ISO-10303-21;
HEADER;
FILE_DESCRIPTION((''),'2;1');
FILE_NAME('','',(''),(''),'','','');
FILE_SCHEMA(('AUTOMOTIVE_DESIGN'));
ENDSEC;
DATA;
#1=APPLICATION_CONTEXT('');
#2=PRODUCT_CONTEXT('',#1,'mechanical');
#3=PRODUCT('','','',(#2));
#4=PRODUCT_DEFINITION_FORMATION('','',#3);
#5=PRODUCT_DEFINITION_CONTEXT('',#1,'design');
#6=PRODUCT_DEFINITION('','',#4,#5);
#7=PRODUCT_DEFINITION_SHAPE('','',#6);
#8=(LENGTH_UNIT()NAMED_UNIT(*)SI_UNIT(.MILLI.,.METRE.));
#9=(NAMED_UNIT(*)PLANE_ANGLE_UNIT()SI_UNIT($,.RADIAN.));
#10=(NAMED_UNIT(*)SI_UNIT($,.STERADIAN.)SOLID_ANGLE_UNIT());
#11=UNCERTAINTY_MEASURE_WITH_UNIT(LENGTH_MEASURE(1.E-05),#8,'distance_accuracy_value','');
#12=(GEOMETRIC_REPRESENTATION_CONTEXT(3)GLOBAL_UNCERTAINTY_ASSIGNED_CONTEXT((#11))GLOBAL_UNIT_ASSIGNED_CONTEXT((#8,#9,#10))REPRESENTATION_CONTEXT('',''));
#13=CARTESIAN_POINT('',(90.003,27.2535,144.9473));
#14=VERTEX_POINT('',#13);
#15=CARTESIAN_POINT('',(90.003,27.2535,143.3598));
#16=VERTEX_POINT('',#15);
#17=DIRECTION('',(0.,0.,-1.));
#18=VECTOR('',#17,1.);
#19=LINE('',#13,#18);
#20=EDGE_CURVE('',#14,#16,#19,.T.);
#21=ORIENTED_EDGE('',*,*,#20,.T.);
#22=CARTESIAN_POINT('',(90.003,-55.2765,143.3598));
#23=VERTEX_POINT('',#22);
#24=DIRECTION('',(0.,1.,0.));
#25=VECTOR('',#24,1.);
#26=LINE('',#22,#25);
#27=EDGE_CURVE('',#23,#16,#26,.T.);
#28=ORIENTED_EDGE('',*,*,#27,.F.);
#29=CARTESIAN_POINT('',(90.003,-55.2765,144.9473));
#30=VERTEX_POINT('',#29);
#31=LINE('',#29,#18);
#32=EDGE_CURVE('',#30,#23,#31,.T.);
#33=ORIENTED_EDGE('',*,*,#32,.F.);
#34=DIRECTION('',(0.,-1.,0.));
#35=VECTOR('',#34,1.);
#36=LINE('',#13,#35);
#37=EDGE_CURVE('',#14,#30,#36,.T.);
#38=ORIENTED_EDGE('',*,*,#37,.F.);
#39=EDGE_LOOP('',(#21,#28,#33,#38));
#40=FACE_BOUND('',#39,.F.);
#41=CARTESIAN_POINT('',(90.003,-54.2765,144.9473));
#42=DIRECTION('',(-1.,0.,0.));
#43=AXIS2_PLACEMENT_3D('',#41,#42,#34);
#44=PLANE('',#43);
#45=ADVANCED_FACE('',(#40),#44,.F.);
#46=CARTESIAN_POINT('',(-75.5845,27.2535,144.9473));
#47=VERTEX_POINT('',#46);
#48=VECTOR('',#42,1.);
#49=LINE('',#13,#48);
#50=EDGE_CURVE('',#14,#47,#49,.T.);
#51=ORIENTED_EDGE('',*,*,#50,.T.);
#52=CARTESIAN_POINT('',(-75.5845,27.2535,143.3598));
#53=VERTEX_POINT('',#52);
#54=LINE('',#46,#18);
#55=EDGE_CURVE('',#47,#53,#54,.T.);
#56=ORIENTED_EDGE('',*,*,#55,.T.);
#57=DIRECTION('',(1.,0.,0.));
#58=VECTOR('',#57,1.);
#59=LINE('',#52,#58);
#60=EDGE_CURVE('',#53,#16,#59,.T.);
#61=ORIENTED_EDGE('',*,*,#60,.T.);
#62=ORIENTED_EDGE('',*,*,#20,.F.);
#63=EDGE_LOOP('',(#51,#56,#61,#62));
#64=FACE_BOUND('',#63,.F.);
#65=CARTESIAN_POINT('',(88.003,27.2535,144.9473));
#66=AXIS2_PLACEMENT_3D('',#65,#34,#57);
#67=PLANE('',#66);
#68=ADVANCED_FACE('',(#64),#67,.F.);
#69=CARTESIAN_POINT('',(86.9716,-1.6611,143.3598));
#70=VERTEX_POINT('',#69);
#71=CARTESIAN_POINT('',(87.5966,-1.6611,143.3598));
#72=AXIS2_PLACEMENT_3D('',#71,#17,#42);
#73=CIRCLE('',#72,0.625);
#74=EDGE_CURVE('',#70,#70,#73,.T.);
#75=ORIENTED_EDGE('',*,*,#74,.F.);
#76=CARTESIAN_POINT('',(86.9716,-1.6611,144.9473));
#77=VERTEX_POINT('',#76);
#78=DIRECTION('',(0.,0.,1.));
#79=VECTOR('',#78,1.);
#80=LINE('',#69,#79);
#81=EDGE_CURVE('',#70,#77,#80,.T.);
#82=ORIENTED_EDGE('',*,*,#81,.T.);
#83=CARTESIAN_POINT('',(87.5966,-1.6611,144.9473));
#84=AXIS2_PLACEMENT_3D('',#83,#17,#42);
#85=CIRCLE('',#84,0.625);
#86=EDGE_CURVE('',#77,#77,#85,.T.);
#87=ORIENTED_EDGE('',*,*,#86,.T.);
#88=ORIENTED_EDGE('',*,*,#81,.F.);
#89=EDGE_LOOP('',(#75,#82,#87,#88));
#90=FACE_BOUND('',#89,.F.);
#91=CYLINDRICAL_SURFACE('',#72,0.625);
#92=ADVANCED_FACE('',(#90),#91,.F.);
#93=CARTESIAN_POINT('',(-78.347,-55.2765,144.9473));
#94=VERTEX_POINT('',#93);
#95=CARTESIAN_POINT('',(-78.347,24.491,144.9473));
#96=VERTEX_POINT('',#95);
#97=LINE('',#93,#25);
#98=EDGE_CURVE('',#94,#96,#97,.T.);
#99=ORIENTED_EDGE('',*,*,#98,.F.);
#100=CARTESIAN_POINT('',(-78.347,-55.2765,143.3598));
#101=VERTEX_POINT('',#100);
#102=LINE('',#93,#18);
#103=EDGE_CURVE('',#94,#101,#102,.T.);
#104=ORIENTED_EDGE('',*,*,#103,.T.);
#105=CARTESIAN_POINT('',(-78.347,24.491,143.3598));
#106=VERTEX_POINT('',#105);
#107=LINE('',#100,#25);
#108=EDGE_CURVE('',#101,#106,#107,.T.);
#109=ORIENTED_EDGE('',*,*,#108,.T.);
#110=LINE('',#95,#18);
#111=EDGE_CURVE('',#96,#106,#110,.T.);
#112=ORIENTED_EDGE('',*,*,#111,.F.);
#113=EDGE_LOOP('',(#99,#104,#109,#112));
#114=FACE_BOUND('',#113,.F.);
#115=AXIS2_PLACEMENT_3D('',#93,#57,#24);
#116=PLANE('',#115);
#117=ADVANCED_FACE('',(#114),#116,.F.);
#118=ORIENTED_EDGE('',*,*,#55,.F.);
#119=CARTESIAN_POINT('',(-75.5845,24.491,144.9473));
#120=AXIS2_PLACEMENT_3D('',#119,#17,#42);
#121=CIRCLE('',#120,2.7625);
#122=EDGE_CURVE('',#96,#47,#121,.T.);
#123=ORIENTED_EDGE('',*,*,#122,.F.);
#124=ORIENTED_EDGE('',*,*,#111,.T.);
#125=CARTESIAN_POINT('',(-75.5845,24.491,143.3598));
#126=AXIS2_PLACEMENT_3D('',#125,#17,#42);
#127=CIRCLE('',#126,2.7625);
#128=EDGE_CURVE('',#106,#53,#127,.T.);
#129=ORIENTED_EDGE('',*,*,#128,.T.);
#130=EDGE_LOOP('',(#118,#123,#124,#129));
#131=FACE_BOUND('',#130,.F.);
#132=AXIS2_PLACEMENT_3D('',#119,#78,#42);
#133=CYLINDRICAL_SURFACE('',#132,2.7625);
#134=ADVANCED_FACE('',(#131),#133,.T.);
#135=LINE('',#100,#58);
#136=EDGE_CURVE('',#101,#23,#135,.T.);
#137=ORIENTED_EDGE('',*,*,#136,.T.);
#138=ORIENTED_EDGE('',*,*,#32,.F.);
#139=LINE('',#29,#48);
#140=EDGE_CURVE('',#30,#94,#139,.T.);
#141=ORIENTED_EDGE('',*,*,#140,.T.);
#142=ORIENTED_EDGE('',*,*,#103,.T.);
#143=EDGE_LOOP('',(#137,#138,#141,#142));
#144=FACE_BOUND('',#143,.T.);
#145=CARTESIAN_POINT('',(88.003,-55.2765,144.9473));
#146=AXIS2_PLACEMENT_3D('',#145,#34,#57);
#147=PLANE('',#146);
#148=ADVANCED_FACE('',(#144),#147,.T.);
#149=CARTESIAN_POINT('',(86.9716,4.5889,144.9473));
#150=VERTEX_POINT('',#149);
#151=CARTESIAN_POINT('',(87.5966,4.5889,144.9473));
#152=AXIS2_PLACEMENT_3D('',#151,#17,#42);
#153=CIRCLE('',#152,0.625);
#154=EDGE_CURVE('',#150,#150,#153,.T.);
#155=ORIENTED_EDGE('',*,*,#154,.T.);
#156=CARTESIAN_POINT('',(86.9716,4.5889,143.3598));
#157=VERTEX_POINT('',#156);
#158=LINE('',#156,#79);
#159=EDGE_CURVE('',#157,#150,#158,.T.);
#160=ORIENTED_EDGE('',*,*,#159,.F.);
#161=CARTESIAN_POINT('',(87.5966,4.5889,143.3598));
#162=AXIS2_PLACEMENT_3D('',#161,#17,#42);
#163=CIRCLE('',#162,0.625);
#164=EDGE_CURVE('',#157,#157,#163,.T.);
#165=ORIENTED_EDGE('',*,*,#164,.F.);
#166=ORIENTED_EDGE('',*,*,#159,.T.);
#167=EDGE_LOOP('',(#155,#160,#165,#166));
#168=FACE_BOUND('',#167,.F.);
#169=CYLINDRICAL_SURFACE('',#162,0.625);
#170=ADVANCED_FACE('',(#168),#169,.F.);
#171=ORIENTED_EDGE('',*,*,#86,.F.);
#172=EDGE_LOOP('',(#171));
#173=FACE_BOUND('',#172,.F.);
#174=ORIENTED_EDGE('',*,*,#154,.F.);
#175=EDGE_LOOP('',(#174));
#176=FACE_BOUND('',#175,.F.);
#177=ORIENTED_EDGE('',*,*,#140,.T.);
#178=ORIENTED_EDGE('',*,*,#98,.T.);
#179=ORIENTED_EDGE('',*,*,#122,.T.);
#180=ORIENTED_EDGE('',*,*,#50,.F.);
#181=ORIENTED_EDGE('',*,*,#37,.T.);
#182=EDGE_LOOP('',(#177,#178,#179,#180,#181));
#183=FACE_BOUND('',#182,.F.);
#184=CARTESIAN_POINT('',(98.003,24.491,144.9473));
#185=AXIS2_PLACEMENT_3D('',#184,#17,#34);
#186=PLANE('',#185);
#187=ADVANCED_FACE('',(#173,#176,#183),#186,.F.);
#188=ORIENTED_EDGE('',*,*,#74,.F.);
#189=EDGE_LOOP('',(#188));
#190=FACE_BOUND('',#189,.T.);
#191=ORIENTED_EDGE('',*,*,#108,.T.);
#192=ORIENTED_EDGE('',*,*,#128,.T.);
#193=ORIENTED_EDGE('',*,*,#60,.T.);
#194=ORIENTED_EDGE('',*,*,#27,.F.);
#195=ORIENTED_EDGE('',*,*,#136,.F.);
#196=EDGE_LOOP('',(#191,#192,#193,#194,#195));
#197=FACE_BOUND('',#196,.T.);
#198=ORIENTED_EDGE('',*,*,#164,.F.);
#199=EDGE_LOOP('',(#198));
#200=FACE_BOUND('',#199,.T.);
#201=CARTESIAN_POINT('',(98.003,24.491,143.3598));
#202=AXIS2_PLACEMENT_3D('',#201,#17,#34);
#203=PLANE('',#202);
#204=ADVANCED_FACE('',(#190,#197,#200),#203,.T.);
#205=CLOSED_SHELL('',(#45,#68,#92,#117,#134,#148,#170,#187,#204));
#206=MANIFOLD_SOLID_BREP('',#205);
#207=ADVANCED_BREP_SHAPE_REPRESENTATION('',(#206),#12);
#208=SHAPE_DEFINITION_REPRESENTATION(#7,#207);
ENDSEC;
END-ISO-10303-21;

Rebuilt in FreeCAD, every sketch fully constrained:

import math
import FreeCAD as App
import Part
import Sketcher
Q = App.Units.Quantity

doc = App.newDocument("Part")
body = doc.addObject("PartDesign::Body", "Body")

# Sketch on XY plane
sketch1 = body.newObject("Sketcher::SketchObject", "Sketch")
sketch1.AttachmentSupport = (doc.getObject("XY_Plane"), [""])
sketch1.MapMode = "FlatFace"
sketch1.AttachmentOffset = App.Placement(App.Vector(0, 0, 144.9473), App.Rotation())
sketch1.addGeometry(Part.LineSegment(App.Vector(90, 27.3, 0), App.Vector(90, -55.3, 0)), False)
sketch1.addGeometry(Part.LineSegment(App.Vector(90, -55.3, 0), App.Vector(-78.3, -55.3, 0)), False)
sketch1.addGeometry(Part.LineSegment(App.Vector(-78.3, -55.3, 0), App.Vector(-78.3, 24.5, 0)), False)
sketch1.addGeometry(Part.ArcOfCircle(Part.Circle(App.Vector(-75.6, 24.5, 0), App.Vector(0, 0, 1), 2.8), math.radians(90), math.radians(180)), False)
sketch1.addGeometry(Part.LineSegment(App.Vector(-75.6, 27.3, 0), App.Vector(90, 27.3, 0)), False)
sketch1.addConstraint(Sketcher.Constraint("Coincident", 0, 2, 1, 1))
sketch1.addConstraint(Sketcher.Constraint("Coincident", 1, 2, 2, 1))
sketch1.addConstraint(Sketcher.Constraint("Tangent", 2, 2, 3, 2))
sketch1.addConstraint(Sketcher.Constraint("Tangent", 3, 1, 4, 1))
sketch1.addConstraint(Sketcher.Constraint("Coincident", 4, 2, 0, 1))
sketch1.addConstraint(Sketcher.Constraint("Vertical", 0))
sketch1.addConstraint(Sketcher.Constraint("Horizontal", 1))
sketch1.addConstraint(Sketcher.Constraint("Vertical", 2))
sketch1.addConstraint(Sketcher.Constraint("Horizontal", 4))
sketch1.addConstraint(Sketcher.Constraint("Radius", 3, 2.7625))
sketch1.addConstraint(Sketcher.Constraint("DistanceX", 4, 1, 4, 2, Q("6.5192 in")))
sketch1.addConstraint(Sketcher.Constraint("DistanceY", 0, 2, 0, 1, 82.53))
sketch1.addConstraint(Sketcher.Constraint("DistanceX", 3, 3, -1, 1, 75.5845))
sketch1.addConstraint(Sketcher.Constraint("DistanceY", -1, 1, 3, 3, 24.491))
pad1 = body.newObject("PartDesign::Pad", "Pad")
pad1.Profile = sketch1
pad1.Length = Q("0.0625 in")
pad1.Reversed = True

# Sketch on XY plane
sketch2 = body.newObject("Sketcher::SketchObject", "Sketch001")
sketch2.AttachmentSupport = (doc.getObject("XY_Plane"), [""])
sketch2.MapMode = "FlatFace"
sketch2.AttachmentOffset = App.Placement(App.Vector(0, 0, 143.3598), App.Rotation())
sketch2.addGeometry(Part.Circle(App.Vector(87.6, 4.6, 0), App.Vector(0, 0, 1), 0.6), False)
sketch2.addGeometry(Part.Circle(App.Vector(87.6, -1.7, 0), App.Vector(0, 0, 1), 0.6), False)
sketch2.addConstraint(Sketcher.Constraint("Equal", 0, 1))
sketch2.addConstraint(Sketcher.Constraint("Vertical", 0, 3, 1, 3))
sketch2.addConstraint(Sketcher.Constraint("Diameter", 0, 1.25))
sketch2.addConstraint(Sketcher.Constraint("DistanceY", 1, 3, -1, 1, Q("0.0654 in")))
sketch2.addConstraint(Sketcher.Constraint("DistanceX", -1, 1, 0, 3, 87.5966))
sketch2.addConstraint(Sketcher.Constraint("DistanceY", -1, 1, 0, 3, 4.589))
pocket1 = body.newObject("PartDesign::Pocket", "Pocket")
pocket1.Profile = sketch2
pocket1.Length = Q("0.0625 in")
pocket1.Reversed = True

doc.recompute()
